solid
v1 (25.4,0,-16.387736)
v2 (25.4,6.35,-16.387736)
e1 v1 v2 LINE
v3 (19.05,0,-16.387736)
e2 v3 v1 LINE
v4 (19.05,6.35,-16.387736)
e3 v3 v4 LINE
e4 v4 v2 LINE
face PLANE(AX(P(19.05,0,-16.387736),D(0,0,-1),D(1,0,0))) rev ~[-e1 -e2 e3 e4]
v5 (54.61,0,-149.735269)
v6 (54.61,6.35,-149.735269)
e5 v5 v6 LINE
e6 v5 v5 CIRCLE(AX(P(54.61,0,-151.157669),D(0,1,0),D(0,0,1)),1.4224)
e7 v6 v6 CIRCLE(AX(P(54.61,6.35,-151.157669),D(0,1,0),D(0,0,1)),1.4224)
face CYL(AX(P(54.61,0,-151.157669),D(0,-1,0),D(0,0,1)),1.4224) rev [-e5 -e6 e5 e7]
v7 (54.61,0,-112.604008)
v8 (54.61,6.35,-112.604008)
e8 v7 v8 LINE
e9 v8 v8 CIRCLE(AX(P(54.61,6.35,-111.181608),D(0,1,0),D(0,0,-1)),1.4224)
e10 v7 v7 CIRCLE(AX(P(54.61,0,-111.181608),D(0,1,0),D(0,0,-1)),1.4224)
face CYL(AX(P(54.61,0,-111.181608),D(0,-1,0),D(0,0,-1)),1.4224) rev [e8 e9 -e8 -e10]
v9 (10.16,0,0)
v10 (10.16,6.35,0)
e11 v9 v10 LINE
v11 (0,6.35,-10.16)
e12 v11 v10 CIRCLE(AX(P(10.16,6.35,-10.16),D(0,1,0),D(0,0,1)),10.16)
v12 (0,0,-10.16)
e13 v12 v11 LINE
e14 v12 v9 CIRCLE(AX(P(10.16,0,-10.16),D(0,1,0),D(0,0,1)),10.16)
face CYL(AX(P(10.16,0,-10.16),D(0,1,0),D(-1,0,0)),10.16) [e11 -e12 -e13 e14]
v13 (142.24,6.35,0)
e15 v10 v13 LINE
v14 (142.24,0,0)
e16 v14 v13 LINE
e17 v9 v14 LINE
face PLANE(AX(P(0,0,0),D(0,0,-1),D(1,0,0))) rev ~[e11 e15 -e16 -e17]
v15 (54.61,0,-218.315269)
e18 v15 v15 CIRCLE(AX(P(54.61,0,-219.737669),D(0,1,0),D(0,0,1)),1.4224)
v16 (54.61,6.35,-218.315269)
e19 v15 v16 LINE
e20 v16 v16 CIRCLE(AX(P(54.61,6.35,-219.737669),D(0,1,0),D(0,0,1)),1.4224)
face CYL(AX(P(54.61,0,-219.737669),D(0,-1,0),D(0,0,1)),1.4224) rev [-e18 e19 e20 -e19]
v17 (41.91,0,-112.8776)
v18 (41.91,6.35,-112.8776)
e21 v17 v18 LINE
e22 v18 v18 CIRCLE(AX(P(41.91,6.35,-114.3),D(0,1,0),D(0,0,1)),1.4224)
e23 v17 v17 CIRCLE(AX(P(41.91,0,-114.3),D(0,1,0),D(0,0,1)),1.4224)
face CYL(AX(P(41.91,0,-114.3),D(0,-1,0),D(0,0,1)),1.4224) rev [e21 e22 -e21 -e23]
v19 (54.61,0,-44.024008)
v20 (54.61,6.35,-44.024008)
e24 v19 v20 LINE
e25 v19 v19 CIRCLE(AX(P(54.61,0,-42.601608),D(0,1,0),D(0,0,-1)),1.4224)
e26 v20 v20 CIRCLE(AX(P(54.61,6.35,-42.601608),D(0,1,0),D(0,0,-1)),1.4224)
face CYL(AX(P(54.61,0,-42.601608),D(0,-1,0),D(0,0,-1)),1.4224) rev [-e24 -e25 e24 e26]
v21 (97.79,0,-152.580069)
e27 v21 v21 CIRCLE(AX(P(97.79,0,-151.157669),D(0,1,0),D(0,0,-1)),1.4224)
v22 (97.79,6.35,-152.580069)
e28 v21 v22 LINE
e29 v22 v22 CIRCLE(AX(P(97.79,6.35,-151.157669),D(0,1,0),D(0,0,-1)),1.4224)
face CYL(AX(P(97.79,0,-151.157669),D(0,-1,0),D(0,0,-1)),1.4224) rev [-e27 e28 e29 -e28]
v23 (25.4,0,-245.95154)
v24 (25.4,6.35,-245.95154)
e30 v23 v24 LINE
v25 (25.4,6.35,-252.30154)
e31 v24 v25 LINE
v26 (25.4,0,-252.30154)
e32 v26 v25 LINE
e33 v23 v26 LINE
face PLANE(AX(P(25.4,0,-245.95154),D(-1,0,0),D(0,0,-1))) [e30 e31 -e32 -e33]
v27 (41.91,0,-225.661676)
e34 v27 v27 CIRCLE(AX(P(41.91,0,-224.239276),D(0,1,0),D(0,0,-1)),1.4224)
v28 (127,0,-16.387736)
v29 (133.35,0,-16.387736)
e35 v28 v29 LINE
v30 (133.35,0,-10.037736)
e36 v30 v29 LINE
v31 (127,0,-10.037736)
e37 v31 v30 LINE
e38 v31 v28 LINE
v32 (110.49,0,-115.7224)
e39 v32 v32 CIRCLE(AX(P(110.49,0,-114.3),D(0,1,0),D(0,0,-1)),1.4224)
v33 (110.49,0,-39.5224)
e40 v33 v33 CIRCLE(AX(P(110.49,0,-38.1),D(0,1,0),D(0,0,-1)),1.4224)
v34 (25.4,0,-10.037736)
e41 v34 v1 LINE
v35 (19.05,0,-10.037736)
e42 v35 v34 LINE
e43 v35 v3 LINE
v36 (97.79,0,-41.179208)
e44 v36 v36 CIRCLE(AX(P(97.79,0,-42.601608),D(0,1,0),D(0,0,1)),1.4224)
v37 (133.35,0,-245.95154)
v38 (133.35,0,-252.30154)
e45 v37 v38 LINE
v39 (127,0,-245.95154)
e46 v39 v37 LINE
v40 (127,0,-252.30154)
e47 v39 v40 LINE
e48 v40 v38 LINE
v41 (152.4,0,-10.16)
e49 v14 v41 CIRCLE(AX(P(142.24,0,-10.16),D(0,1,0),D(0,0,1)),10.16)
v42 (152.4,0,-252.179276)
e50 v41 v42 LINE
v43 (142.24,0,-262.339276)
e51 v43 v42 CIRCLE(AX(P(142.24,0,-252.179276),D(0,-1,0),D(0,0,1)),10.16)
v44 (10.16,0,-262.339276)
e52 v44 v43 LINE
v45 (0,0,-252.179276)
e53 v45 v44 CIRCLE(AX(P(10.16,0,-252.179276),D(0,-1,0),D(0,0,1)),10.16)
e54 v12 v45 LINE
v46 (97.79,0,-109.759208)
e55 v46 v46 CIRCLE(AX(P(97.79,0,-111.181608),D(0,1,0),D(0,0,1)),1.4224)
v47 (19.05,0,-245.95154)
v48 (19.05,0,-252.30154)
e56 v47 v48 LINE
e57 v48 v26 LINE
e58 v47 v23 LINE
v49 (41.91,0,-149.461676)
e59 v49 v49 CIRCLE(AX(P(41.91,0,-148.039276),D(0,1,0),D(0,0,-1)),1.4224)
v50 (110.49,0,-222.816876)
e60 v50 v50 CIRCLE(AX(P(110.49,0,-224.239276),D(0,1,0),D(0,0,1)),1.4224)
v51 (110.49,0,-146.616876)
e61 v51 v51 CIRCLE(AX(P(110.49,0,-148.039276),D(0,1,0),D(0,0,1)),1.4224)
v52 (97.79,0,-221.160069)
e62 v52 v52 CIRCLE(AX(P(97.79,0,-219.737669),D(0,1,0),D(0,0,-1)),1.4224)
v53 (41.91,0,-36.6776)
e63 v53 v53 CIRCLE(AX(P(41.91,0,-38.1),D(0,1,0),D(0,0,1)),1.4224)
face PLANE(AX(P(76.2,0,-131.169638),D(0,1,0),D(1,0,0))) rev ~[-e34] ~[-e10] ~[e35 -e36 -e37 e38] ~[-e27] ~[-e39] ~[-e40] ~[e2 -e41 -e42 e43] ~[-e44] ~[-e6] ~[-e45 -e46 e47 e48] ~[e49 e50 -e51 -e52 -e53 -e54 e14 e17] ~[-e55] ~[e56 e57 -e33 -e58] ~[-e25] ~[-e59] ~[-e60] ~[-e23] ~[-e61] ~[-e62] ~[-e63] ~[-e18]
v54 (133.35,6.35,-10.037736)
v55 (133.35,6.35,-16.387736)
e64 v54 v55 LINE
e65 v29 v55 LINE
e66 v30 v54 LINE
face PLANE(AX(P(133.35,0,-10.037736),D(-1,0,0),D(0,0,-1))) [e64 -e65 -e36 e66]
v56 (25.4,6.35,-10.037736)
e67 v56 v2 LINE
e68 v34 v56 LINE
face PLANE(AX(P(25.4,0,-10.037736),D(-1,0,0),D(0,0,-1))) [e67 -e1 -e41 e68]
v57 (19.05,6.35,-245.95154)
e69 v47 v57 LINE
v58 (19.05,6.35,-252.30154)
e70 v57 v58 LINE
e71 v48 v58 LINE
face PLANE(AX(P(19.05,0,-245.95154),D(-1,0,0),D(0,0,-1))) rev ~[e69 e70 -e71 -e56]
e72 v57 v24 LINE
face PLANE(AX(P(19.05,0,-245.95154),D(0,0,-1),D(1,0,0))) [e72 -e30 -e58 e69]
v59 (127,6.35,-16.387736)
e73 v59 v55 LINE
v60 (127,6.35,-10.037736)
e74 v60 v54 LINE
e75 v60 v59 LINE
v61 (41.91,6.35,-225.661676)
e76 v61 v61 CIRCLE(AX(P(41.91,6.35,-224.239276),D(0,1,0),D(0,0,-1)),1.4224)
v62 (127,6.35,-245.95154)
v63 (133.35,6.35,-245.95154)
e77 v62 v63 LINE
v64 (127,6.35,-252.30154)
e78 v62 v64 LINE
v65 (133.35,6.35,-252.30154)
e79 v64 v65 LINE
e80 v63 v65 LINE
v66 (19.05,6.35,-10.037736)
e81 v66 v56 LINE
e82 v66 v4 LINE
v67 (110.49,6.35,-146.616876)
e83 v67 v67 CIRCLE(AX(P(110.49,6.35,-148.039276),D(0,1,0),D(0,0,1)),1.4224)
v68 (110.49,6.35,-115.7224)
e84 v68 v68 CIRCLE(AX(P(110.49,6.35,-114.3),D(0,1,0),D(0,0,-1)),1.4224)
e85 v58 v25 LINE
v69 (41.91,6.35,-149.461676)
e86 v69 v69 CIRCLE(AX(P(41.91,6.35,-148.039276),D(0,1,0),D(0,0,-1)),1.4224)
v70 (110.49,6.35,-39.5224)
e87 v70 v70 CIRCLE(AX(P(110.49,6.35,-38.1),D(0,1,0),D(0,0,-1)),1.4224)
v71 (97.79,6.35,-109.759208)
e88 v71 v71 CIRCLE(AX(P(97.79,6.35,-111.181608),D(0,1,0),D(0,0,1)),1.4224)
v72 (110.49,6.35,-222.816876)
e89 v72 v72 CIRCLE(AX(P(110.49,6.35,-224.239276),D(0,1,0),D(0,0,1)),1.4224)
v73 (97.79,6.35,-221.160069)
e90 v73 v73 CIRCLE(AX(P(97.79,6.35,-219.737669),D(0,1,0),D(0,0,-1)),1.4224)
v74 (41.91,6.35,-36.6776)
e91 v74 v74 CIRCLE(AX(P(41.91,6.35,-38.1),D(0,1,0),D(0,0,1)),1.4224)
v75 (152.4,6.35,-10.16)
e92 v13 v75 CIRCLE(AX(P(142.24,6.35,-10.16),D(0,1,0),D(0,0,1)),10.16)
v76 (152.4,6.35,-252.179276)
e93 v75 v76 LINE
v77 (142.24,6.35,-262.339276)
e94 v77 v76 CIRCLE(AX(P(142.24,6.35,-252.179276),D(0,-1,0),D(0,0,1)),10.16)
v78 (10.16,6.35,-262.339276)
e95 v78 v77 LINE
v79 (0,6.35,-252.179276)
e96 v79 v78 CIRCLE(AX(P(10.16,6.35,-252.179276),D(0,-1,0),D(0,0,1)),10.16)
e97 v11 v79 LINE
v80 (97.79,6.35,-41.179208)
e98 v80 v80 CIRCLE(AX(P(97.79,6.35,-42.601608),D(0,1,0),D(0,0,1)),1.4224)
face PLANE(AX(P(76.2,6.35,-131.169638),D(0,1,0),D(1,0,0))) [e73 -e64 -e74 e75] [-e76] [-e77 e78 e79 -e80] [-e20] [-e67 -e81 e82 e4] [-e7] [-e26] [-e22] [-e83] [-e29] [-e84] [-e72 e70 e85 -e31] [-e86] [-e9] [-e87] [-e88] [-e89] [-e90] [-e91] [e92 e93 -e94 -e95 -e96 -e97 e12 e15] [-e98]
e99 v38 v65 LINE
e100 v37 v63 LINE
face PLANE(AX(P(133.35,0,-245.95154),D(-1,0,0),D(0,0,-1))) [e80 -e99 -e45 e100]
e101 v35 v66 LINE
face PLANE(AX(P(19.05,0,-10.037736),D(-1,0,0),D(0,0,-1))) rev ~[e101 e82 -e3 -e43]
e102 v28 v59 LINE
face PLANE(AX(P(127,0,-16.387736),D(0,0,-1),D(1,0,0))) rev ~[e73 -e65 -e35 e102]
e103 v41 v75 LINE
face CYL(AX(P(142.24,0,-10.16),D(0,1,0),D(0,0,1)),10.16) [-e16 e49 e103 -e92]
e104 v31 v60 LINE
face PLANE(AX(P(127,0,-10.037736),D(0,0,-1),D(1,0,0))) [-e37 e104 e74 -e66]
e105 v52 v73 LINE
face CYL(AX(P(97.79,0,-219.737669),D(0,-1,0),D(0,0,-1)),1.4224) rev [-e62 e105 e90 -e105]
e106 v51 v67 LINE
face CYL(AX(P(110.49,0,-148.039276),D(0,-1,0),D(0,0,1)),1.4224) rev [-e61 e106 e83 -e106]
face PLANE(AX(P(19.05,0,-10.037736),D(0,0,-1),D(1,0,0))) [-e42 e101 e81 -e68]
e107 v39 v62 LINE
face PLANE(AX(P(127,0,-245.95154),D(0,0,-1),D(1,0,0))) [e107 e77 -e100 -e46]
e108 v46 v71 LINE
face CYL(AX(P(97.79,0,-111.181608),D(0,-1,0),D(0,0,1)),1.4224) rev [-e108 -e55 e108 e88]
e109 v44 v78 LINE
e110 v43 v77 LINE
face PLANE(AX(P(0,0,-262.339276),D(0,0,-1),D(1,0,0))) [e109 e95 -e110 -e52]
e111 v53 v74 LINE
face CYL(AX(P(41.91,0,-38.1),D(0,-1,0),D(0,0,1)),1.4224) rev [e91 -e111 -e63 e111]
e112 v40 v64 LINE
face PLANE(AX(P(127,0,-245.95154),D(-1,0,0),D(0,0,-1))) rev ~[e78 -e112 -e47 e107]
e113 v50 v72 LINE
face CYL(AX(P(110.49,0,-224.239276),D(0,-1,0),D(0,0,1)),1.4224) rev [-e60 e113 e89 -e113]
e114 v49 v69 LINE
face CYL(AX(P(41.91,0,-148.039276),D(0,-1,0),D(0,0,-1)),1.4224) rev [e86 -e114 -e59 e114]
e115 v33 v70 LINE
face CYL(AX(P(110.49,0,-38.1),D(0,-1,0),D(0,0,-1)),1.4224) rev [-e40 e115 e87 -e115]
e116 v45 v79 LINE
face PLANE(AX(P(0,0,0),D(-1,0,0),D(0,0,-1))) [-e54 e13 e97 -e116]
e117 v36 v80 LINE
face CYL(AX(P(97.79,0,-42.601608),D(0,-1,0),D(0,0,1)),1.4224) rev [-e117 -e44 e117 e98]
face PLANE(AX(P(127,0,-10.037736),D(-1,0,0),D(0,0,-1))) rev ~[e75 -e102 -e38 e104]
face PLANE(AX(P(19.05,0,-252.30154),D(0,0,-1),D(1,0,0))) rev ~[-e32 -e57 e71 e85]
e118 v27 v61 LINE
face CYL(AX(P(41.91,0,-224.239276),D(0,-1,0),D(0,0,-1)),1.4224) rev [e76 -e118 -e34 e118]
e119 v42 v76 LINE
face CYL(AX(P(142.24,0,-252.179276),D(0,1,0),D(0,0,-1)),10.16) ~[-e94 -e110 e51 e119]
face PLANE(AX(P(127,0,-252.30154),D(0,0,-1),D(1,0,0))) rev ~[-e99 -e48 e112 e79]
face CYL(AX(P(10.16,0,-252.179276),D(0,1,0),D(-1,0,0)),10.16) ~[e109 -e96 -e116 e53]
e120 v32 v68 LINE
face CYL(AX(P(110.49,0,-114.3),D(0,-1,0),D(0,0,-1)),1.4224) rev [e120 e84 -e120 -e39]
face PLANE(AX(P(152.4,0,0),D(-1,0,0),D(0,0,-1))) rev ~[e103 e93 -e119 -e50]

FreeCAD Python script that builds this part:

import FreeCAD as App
import Part
import Sketcher
Q = App.Units.Quantity


def edges_at(feature, points):
    """Names of the edges that pass closest to the given points."""
    edges = feature.Shape.Edges
    near = lambda p: min(range(len(edges)), key=lambda i: edges[i].distToShape(Part.Vertex(*p))[0])
    return sorted({f"Edge{near(p) + 1}" for p in points})

doc = App.newDocument("Part")
params = doc.addObject("Spreadsheet::Sheet", "Params")
for row, (alias, value) in enumerate([
    ("sketch1_width", "6 in"),
    ("sketch1_diameter", "0.112 in"),
    ("sketch1_width2", "0.25 in"),
    ("pad1_length", "0.25 in"),
    ("fillet_radius", "0.4 in"),
], start=1):
    params.set(f"A{row}", alias)
    params.set(f"B{row}", "=" + value)
    params.setAlias(f"B{row}", alias)

body = doc.addObject("PartDesign::Body", "Body")

# Sketch on XZ plane
sketch1 = doc.addObject("Sketcher::SketchObject", "Sketch")
body.addObject(sketch1)
sketch1.AttachmentSupport = (doc.XZ_Plane, [""])
sketch1.MapMode = "FlatFace"
sketch1.addGeometry(Part.LineSegment(App.Vector(0, -262.3, 0), App.Vector(0, 0, 0)), False)
sketch1.addGeometry(Part.LineSegment(App.Vector(0, 0, 0), App.Vector(152.4, 0, 0)), False)
sketch1.addGeometry(Part.LineSegment(App.Vector(152.4, 0, 0), App.Vector(152.4, -262.3, 0)), False)
sketch1.addGeometry(Part.LineSegment(App.Vector(152.4, -262.3, 0), App.Vector(0, -262.3, 0)), False)
sketch1.addGeometry(Part.LineSegment(App.Vector(25.4, -10, 0), App.Vector(19.1, -10, 0)), False)
sketch1.addGeometry(Part.LineSegment(App.Vector(19.1, -10, 0), App.Vector(19.1, -16.4, 0)), False)
sketch1.addGeometry(Part.LineSegment(App.Vector(19.1, -16.4, 0), App.Vector(25.4, -16.4, 0)), False)
sketch1.addGeometry(Part.LineSegment(App.Vector(25.4, -16.4, 0), App.Vector(25.4, -10, 0)), False)
sketch1.addGeometry(Part.Circle(App.Vector(41.9, -38.1, 0), App.Vector(0, 0, 1), 1.4), False)
sketch1.addGeometry(Part.Circle(App.Vector(54.6, -42.6, 0), App.Vector(0, 0, 1), 1.4), False)
sketch1.addGeometry(Part.Circle(App.Vector(41.9, -114.3, 0), App.Vector(0, 0, 1), 1.4), False)
sketch1.addGeometry(Part.Circle(App.Vector(54.6, -111.2, 0), App.Vector(0, 0, 1), 1.4), False)
sketch1.addGeometry(Part.Circle(App.Vector(97.8, -42.6, 0), App.Vector(0, 0, 1), 1.4), False)
sketch1.addGeometry(Part.Circle(App.Vector(110.5, -38.1, 0), App.Vector(0, 0, 1), 1.4), False)
sketch1.addGeometry(Part.LineSegment(App.Vector(133.3, -10, 0), App.Vector(127, -10, 0)), False)
sketch1.addGeometry(Part.LineSegment(App.Vector(127, -10, 0), App.Vector(127, -16.4, 0)), False)
sketch1.addGeometry(Part.LineSegment(App.Vector(127, -16.4, 0), App.Vector(133.3, -16.4, 0)), False)
sketch1.addGeometry(Part.LineSegment(App.Vector(133.3, -16.4, 0), App.Vector(133.3, -10, 0)), False)
sketch1.addGeometry(Part.Circle(App.Vector(97.8, -111.2, 0), App.Vector(0, 0, 1), 1.4), False)
sketch1.addGeometry(Part.Circle(App.Vector(110.5, -114.3, 0), App.Vector(0, 0, 1), 1.4), False)
sketch1.addGeometry(Part.Circle(App.Vector(41.9, -148, 0), App.Vector(0, 0, 1), 1.4), False)
sketch1.addGeometry(Part.Circle(App.Vector(54.6, -151.2, 0), App.Vector(0, 0, 1), 1.4), False)
sketch1.addGeometry(Part.LineSegment(App.Vector(25.4, -246, 0), App.Vector(19.1, -246, 0)), False)
sketch1.addGeometry(Part.LineSegment(App.Vector(19.1, -246, 0), App.Vector(19.1, -252.3, 0)), False)
sketch1.addGeometry(Part.LineSegment(App.Vector(19.1, -252.3, 0), App.Vector(25.4, -252.3, 0)), False)
sketch1.addGeometry(Part.LineSegment(App.Vector(25.4, -252.3, 0), App.Vector(25.4, -246, 0)), False)
sketch1.addGeometry(Part.Circle(App.Vector(41.9, -224.2, 0), App.Vector(0, 0, 1), 1.4), False)
sketch1.addGeometry(Part.Circle(App.Vector(54.6, -219.7, 0), App.Vector(0, 0, 1), 1.4), False)
sketch1.addGeometry(Part.Circle(App.Vector(97.8, -151.2, 0), App.Vector(0, 0, 1), 1.4), False)
sketch1.addGeometry(Part.Circle(App.Vector(110.5, -148, 0), App.Vector(0, 0, 1), 1.4), False)
sketch1.addGeometry(Part.Circle(App.Vector(97.8, -219.7, 0), App.Vector(0, 0, 1), 1.4), False)
sketch1.addGeometry(Part.Circle(App.Vector(110.5, -224.2, 0), App.Vector(0, 0, 1), 1.4), False)
sketch1.addGeometry(Part.LineSegment(App.Vector(133.3, -246, 0), App.Vector(127, -246, 0)), False)
sketch1.addGeometry(Part.LineSegment(App.Vector(127, -246, 0), App.Vector(127, -252.3, 0)), False)
sketch1.addGeometry(Part.LineSegment(App.Vector(127, -252.3, 0), App.Vector(133.3, -252.3, 0)), False)
sketch1.addGeometry(Part.LineSegment(App.Vector(133.3, -252.3, 0), App.Vector(133.3, -246, 0)), False)
sketch1.addConstraint(Sketcher.Constraint("Coincident", 0, 2, 1, 1))
sketch1.addConstraint(Sketcher.Constraint("Coincident", 1, 2, 2, 1))
sketch1.addConstraint(Sketcher.Constraint("Coincident", 2, 2, 3, 1))
sketch1.addConstraint(Sketcher.Constraint("Coincident", 3, 2, 0, 1))
sketch1.addConstraint(Sketcher.Constraint("Coincident", 4, 2, 5, 1))
sketch1.addConstraint(Sketcher.Constraint("Coincident", 5, 2, 6, 1))
sketch1.addConstraint(Sketcher.Constraint("Coincident", 6, 2, 7, 1))
sketch1.addConstraint(Sketcher.Constraint("Coincident", 7, 2, 4, 1))
sketch1.addConstraint(Sketcher.Constraint("Coincident", 14, 2, 15, 1))
sketch1.addConstraint(Sketcher.Constraint("Coincident", 15, 2, 16, 1))
sketch1.addConstraint(Sketcher.Constraint("Coincident", 16, 2, 17, 1))
sketch1.addConstraint(Sketcher.Constraint("Coincident", 17, 2, 14, 1))
sketch1.addConstraint(Sketcher.Constraint("Coincident", 22, 2, 23, 1))
sketch1.addConstraint(Sketcher.Constraint("Coincident", 23, 2, 24, 1))
sketch1.addConstraint(Sketcher.Constraint("Coincident", 24, 2, 25, 1))
sketch1.addConstraint(Sketcher.Constraint("Coincident", 25, 2, 22, 1))
sketch1.addConstraint(Sketcher.Constraint("Coincident", 32, 2, 33, 1))
sketch1.addConstraint(Sketcher.Constraint("Coincident", 33, 2, 34, 1))
sketch1.addConstraint(Sketcher.Constraint("Coincident", 34, 2, 35, 1))
sketch1.addConstraint(Sketcher.Constraint("Coincident", 35, 2, 32, 1))
sketch1.addConstraint(Sketcher.Constraint("Vertical", 0))
sketch1.addConstraint(Sketcher.Constraint("Horizontal", 1))
sketch1.addConstraint(Sketcher.Constraint("Vertical", 2))
sketch1.addConstraint(Sketcher.Constraint("Horizontal", 3))
sketch1.addConstraint(Sketcher.Constraint("Horizontal", 4))
sketch1.addConstraint(Sketcher.Constraint("Vertical", 5))
sketch1.addConstraint(Sketcher.Constraint("Horizontal", 6))
sketch1.addConstraint(Sketcher.Constraint("Vertical", 7))
sketch1.addConstraint(Sketcher.Constraint("Horizontal", 14))
sketch1.addConstraint(Sketcher.Constraint("Vertical", 15))
sketch1.addConstraint(Sketcher.Constraint("Horizontal", 16))
sketch1.addConstraint(Sketcher.Constraint("Vertical", 17))
sketch1.addConstraint(Sketcher.Constraint("Horizontal", 22))
sketch1.addConstraint(Sketcher.Constraint("Vertical", 23))
sketch1.addConstraint(Sketcher.Constraint("Horizontal", 24))
sketch1.addConstraint(Sketcher.Constraint("Vertical", 25))
sketch1.addConstraint(Sketcher.Constraint("Horizontal", 32))
sketch1.addConstraint(Sketcher.Constraint("Vertical", 33))
sketch1.addConstraint(Sketcher.Constraint("Horizontal", 34))
sketch1.addConstraint(Sketcher.Constraint("Vertical", 35))
sketch1.addConstraint(Sketcher.Constraint("Coincident", 0, 2, -1, 1))
sketch1.addConstraint(Sketcher.Constraint("Equal", 8, 9))
sketch1.addConstraint(Sketcher.Constraint("Equal", 9, 10))
sketch1.addConstraint(Sketcher.Constraint("Equal", 10, 11))
sketch1.addConstraint(Sketcher.Constraint("Equal", 11, 12))
sketch1.addConstraint(Sketcher.Constraint("Equal", 12, 13))
sketch1.addConstraint(Sketcher.Constraint("Equal", 13, 18))
sketch1.addConstraint(Sketcher.Constraint("Equal", 18, 19))
sketch1.addConstraint(Sketcher.Constraint("Equal", 19, 20))
sketch1.addConstraint(Sketcher.Constraint("Equal", 20, 21))
sketch1.addConstraint(Sketcher.Constraint("Equal", 21, 26))
sketch1.addConstraint(Sketcher.Constraint("Equal", 26, 27))
sketch1.addConstraint(Sketcher.Constraint("Equal", 27, 28))
sketch1.addConstraint(Sketcher.Constraint("Equal", 28, 29))
sketch1.addConstraint(Sketcher.Constraint("Equal", 29, 30))
sketch1.addConstraint(Sketcher.Constraint("Equal", 30, 31))
sketch1.addConstraint(Sketcher.Constraint("Horizontal", 9, 3, 12, 3))
sketch1.addConstraint(Sketcher.Constraint("Horizontal", 8, 3, 13, 3))
sketch1.addConstraint(Sketcher.Constraint("Horizontal", 11, 3, 18, 3))
sketch1.addConstraint(Sketcher.Constraint("Horizontal", 10, 3, 19, 3))
sketch1.addConstraint(Sketcher.Constraint("Horizontal", 21, 3, 28, 3))
sketch1.addConstraint(Sketcher.Constraint("Horizontal", 20, 3, 29, 3))
sketch1.addConstraint(Sketcher.Constraint("Horizontal", 27, 3, 30, 3))
sketch1.addConstraint(Sketcher.Constraint("Horizontal", 26, 3, 31, 3))
sketch1.addConstraint(Sketcher.Constraint("Horizontal", 7, 2, 14, 2))
sketch1.addConstraint(Sketcher.Constraint("Horizontal", 6, 2, 15, 2))
sketch1.addConstraint(Sketcher.Constraint("Horizontal", 25, 2, 32, 2))
sketch1.addConstraint(Sketcher.Constraint("Horizontal", 24, 2, 33, 2))
sketch1.addConstraint(Sketcher.Constraint("Vertical", 8, 3, 10, 3))
sketch1.addConstraint(Sketcher.Constraint("Vertical", 9, 3, 11, 3))
sketch1.addConstraint(Sketcher.Constraint("Vertical", 12, 3, 18, 3))
sketch1.addConstraint(Sketcher.Constraint("Vertical", 13, 3, 19, 3))
sketch1.addConstraint(Sketcher.Constraint("Vertical", 10, 3, 20, 3))
sketch1.addConstraint(Sketcher.Constraint("Vertical", 11, 3, 21, 3))
sketch1.addConstraint(Sketcher.Constraint("Vertical", 20, 3, 26, 3))
sketch1.addConstraint(Sketcher.Constraint("Vertical", 21, 3, 27, 3))
sketch1.addConstraint(Sketcher.Constraint("Vertical", 18, 3, 28, 3))
sketch1.addConstraint(Sketcher.Constraint("Vertical", 19, 3, 29, 3))
sketch1.addConstraint(Sketcher.Constraint("Vertical", 28, 3, 30, 3))
sketch1.addConstraint(Sketcher.Constraint("Vertical", 29, 3, 31, 3))
sketch1.addConstraint(Sketcher.Constraint("Vertical", 5, 2, 22, 2))
sketch1.addConstraint(Sketcher.Constraint("Vertical", 7, 2, 24, 2))
sketch1.addConstraint(Sketcher.Constraint("Vertical", 15, 2, 32, 2))
sketch1.addConstraint(Sketcher.Constraint("Vertical", 17, 2, 34, 2))
sketch1.addConstraint(Sketcher.Constraint("Equal", 6, 14))
sketch1.addConstraint(Sketcher.Constraint("Equal", 34, 5))
sketch1.addConstraint(Sketcher.Constraint("Equal", 17, 23))
sketch1.addConstraint(Sketcher.Constraint("DistanceX", 1, 1, 1, 2, Q("6 in")))
sketch1.addConstraint(Sketcher.Constraint("Diameter", 8, Q("0.112 in")))
sketch1.addConstraint(Sketcher.Constraint("DistanceX", -1, 1, 6, 2, Q("1 in")))
sketch1.addConstraint(Sketcher.Constraint("DistanceX", -1, 1, 14, 2, Q("5 in")))
sketch1.addConstraint(Sketcher.Constraint("DistanceY", 10, 3, 8, 3, Q("3 in")))
sketch1.addConstraint(Sketcher.Constraint("DistanceY", 26, 3, 20, 3, Q("3 in")))
sketch1.addConstraint(Sketcher.Constraint("DistanceX", 4, 2, 4, 1, Q("0.25 in")))
sketch1.addConstraint(Sketcher.Constraint("DistanceY", 8, 3, -1, 1, Q("1.5 in")))
sketch1.addConstraint(Sketcher.Constraint("DistanceX", 8, 3, 9, 3, Q("0.5 in")))
sketch1.addConstraint(Sketcher.Constraint("DistanceY", 11, 3, 9, 3, Q("2.7 in")))
sketch1.addConstraint(Sketcher.Constraint("DistanceX", 9, 3, 12, 3, Q("1.7 in")))
sketch1.addConstraint(Sketcher.Constraint("DistanceX", 12, 3, 13, 3, Q("0.5 in")))
sketch1.addConstraint(Sketcher.Constraint("DistanceY", 27, 3, 21, 3, Q("2.7 in")))
sketch1.addConstraint(Sketcher.Constraint("DistanceY", 2, 2, 31, 3, Q("1.5 in")))
sketch1.addConstraint(Sketcher.Constraint("DistanceX", 4, 2, 8, 3, Q("0.9 in")))
sketch1.addConstraint(Sketcher.Constraint("DistanceY", 0, 1, 0, 2, 262.339276))
sketch1.addConstraint(Sketcher.Constraint("DistanceY", 21, 3, -1, 1, 151.157669))
sketch1.addConstraint(Sketcher.Constraint("DistanceY", 22, 2, -1, 1, 245.95154))
sketch1.addConstraint(Sketcher.Constraint("DistanceY", 20, 3, 11, 3, 36.857669))
sketch1.addConstraint(Sketcher.Constraint("DistanceY", 9, 3, 4, 2, 32.563872))
sketch1.setExpression("Constraints[87]", "Params.sketch1_width")
sketch1.setExpression("Constraints[88]", "Params.sketch1_diameter")
sketch1.setExpression("Constraints[93]", "Params.sketch1_width2")
pad1 = doc.addObject("PartDesign::Pad", "Pad")
body.addObject(pad1)
pad1.Profile = sketch1
pad1.setExpression("Length", "Params.pad1_length")
pad1.Reversed = True
doc.recompute()

fillet = doc.addObject("PartDesign::Fillet", "Fillet")
body.addObject(fillet)
fillet.Base = (pad1, edges_at(pad1, [
    (0, 3.175, -262.339),
    (152.4, 3.175, -262.339),
    (152.4, 3.175, 0),
    (0, 3.175, 0),
]))
fillet.setExpression("Radius", "Params.fillet_radius")

doc.recompute()
